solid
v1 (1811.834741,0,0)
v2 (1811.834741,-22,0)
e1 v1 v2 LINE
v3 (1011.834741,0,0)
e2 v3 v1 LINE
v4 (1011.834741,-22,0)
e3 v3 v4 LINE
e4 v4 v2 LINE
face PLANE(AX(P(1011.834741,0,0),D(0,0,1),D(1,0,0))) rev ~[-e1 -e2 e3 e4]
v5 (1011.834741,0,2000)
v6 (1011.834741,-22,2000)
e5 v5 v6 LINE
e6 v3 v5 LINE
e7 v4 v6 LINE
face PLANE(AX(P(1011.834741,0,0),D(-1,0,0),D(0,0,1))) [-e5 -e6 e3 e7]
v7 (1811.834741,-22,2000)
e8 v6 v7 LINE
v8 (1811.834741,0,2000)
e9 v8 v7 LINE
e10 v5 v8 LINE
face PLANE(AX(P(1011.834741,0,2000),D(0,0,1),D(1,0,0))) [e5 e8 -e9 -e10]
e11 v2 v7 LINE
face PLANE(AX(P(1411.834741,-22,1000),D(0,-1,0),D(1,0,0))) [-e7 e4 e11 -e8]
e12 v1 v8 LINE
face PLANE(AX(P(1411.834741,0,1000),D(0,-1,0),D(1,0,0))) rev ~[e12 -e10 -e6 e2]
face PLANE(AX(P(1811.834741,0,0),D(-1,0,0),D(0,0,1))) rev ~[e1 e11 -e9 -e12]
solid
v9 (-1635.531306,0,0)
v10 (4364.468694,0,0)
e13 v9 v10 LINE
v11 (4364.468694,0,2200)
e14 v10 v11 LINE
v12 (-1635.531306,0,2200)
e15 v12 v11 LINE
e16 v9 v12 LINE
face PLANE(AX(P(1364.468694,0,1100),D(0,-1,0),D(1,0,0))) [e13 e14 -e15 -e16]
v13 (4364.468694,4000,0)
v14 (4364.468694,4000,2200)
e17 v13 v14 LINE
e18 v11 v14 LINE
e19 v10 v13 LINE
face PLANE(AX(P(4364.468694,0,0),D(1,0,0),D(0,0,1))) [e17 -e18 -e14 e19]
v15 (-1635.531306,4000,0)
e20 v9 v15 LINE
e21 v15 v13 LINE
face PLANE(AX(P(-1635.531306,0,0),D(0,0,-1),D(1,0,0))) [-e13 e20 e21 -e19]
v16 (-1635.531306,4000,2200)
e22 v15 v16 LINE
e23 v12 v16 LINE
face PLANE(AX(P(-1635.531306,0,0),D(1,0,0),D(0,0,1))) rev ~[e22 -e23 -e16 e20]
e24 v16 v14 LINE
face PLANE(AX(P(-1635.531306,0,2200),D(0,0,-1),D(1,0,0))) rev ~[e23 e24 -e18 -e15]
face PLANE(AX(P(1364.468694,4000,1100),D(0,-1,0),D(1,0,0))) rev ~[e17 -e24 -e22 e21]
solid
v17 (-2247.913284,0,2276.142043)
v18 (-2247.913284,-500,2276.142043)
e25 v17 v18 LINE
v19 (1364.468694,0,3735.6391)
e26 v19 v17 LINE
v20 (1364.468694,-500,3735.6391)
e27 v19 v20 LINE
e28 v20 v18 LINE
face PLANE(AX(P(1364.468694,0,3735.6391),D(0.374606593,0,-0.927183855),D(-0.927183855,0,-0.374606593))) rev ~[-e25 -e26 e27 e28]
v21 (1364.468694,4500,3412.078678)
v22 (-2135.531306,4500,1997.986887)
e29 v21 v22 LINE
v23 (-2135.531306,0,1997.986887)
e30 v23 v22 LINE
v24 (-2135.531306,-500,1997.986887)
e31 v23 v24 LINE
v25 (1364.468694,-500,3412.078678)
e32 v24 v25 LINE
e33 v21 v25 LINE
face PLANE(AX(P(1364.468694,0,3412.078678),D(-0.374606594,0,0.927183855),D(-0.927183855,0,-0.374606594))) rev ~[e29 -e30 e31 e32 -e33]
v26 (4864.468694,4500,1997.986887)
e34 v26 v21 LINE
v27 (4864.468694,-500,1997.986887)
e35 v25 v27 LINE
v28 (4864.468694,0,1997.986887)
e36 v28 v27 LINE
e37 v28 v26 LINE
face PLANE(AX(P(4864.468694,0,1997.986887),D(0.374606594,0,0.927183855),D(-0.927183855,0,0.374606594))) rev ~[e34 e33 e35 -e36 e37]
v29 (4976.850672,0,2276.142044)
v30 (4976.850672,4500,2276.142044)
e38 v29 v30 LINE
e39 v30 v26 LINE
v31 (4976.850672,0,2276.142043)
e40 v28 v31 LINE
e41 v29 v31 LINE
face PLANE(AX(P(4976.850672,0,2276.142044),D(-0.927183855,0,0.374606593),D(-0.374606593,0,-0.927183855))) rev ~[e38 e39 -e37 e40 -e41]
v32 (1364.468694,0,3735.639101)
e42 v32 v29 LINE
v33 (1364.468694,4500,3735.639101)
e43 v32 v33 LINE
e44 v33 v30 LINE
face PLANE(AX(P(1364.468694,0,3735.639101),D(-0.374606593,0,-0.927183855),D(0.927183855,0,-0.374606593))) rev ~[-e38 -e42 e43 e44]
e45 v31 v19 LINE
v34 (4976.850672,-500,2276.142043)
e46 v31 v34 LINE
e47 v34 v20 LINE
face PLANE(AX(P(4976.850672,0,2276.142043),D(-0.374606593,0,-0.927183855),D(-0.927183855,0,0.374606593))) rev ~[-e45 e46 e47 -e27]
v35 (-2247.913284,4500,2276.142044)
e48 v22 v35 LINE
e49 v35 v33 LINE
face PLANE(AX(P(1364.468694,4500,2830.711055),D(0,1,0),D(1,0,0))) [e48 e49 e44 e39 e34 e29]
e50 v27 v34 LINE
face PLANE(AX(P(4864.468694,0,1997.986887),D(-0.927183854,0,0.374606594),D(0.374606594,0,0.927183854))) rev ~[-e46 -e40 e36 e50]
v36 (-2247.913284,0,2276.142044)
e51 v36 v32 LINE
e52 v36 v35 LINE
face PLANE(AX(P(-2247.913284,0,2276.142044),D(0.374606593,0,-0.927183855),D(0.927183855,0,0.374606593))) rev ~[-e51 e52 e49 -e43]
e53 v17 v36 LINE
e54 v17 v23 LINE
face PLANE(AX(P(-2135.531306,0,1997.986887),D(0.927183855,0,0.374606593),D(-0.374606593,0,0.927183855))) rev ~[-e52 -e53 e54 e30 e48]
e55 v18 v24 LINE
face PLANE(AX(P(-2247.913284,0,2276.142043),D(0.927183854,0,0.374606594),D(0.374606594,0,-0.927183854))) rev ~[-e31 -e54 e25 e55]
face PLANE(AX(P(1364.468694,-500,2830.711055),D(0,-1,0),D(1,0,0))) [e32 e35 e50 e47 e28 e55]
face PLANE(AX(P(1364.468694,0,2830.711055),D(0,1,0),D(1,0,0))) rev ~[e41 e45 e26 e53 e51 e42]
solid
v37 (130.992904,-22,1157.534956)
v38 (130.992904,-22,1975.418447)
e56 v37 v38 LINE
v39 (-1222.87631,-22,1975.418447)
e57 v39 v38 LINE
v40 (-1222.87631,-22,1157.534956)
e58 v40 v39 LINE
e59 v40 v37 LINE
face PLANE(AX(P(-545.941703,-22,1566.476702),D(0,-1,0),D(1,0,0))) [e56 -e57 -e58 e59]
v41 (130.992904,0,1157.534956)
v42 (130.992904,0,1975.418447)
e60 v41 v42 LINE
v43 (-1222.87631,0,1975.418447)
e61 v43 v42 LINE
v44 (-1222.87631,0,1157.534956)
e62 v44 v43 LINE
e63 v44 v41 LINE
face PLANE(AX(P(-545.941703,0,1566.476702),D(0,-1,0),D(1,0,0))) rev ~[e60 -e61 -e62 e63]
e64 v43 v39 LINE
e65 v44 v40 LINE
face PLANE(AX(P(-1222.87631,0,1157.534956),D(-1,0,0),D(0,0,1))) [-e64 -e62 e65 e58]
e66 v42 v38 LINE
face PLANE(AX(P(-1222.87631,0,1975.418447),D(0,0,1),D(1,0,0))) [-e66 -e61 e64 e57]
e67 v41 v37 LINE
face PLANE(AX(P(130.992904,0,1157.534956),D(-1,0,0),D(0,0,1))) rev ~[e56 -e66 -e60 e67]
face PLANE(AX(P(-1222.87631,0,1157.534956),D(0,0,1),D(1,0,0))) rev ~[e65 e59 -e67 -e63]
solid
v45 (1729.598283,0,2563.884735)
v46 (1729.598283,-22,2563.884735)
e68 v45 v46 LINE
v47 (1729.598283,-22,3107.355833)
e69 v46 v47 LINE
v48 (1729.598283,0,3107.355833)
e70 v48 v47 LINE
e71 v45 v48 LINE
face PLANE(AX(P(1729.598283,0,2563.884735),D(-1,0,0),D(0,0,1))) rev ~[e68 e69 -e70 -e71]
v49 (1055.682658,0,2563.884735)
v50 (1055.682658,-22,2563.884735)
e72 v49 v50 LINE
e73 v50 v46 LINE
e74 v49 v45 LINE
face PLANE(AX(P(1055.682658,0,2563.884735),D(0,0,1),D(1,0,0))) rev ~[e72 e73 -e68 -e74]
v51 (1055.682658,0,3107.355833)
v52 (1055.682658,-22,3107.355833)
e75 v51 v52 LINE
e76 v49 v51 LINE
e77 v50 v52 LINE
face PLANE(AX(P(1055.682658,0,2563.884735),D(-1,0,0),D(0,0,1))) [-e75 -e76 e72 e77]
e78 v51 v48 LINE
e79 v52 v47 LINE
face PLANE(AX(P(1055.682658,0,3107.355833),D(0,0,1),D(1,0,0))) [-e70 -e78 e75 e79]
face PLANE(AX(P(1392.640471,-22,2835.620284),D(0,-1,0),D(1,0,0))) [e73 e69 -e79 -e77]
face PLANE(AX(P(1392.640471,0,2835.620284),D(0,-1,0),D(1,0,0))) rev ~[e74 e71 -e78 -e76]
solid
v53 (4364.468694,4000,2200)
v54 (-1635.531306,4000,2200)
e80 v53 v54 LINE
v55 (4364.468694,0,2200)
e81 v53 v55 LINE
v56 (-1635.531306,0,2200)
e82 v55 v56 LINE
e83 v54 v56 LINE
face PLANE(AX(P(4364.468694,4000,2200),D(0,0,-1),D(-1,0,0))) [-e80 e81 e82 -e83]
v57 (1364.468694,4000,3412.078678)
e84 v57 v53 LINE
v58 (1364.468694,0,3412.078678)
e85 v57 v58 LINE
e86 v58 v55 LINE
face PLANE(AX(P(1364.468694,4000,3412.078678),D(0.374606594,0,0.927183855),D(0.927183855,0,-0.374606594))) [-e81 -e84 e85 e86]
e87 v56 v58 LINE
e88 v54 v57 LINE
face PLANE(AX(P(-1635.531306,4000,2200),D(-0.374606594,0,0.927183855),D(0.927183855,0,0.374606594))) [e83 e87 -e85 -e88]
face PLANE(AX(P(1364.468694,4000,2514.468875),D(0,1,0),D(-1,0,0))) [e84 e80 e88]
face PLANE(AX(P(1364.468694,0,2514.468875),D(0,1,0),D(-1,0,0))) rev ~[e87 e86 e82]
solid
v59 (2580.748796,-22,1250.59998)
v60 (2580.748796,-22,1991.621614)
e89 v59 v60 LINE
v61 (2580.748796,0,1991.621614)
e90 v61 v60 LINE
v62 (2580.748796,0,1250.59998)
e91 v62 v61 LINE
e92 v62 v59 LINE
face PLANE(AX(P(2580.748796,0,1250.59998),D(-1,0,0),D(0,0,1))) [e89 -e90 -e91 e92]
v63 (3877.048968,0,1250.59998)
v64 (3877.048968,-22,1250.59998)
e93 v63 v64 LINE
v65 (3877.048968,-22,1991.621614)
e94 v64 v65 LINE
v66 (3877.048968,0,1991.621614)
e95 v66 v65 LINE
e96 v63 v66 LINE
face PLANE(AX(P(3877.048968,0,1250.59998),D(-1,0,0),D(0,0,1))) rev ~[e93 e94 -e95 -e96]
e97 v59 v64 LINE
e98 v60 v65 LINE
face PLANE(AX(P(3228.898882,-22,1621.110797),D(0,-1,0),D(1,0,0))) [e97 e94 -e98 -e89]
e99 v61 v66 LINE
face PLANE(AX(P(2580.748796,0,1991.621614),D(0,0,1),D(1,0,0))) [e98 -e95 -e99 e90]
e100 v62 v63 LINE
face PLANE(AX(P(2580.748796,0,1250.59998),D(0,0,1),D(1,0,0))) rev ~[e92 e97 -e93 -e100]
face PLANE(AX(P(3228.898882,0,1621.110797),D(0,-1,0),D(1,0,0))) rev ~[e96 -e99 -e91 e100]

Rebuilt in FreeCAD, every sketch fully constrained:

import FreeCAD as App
import Part
import Sketcher
Q = App.Units.Quantity

doc = App.newDocument("Part")
params = doc.addObject("Spreadsheet::Sheet", "Params")
for row, (alias, value) in enumerate([
    ("sketch1_width", "6000 mm"),
    ("sketch1_height", "2200 mm"),
    ("pad1_length", "4000 mm"),
    ("sketch2_length", "300 mm"),
    ("pad2_length", "500 mm"),
    ("sketch3_length", "300.000001 mm"),
    ("pad3_length", "4500 mm"),
    ("sketch4_width", "6000 mm"),
    ("pad4_length", "4000 mm"),
    ("sketch5_width", "800 mm"),
    ("sketch5_height", "2000 mm"),
    ("pad5_length", "22 mm"),
], start=1):
    params.set(f"A{row}", alias)
    params.set(f"B{row}", "=" + value)
    params.setAlias(f"B{row}", alias)

body = doc.addObject("PartDesign::Body", "Body")

sketch1 = doc.addObject("Sketcher::SketchObject", "Sketch")
body.addObject(sketch1)
sketch1.AttachmentSupport = (doc.XZ_Plane, [""])
sketch1.MapMode = "FlatFace"
sketch1.addGeometry([
    Part.LineSegment(App.Vector(-1636, 2200, 0), App.Vector(-1636, 0, 0)),
    Part.LineSegment(App.Vector(-1636, 0, 0), App.Vector(4364, 0, 0)),
    Part.LineSegment(App.Vector(4364, 0, 0), App.Vector(4364, 2200, 0)),
    Part.LineSegment(App.Vector(4364, 2200, 0), App.Vector(-1636, 2200, 0)),
], False)
sketch1.addConstraint([
    Sketcher.Constraint("Coincident", 0, 2, 1, 1),
    Sketcher.Constraint("Coincident", 1, 2, 2, 1),
    Sketcher.Constraint("Coincident", 2, 2, 3, 1),
    Sketcher.Constraint("Coincident", 3, 2, 0, 1),
    Sketcher.Constraint("Vertical", 0),
    Sketcher.Constraint("Horizontal", 1),
    Sketcher.Constraint("Vertical", 2),
    Sketcher.Constraint("Horizontal", 3),
    Sketcher.Constraint("PointOnObject", 0, 2, -1),
    Sketcher.Constraint("DistanceX", 1, 1, 1, 2, 6000.0),
    Sketcher.Constraint("DistanceY", 0, 2, 0, 1, 2200.0),
    Sketcher.Constraint("DistanceX", 0, 2, -1, 1, 1635.531306),
])
sketch1.setExpression("Constraints[9]", "Params.sketch1_width")
sketch1.setExpression("Constraints[10]", "Params.sketch1_height")
pad1 = doc.addObject("PartDesign::Pad", "Pad")
body.addObject(pad1)
pad1.Profile = sketch1
pad1.setExpression("Length", "Params.pad1_length")
pad1.Reversed = True
body2 = doc.addObject("PartDesign::Body", "Body001")

sketch2 = doc.addObject("Sketcher::SketchObject", "Sketch001")
body2.addObject(sketch2)
sketch2.AttachmentSupport = (doc.getObject("XZ_Plane001"), [""])
sketch2.MapMode = "FlatFace"
sketch2.addGeometry([
    Part.LineSegment(App.Vector(-2248, 2276, 0), App.Vector(-2136, 1998, 0)),
    Part.LineSegment(App.Vector(-2136, 1998, 0), App.Vector(1364, 3412, 0)),
    Part.LineSegment(App.Vector(1364, 3412, 0), App.Vector(4864, 1998, 0)),
    Part.LineSegment(App.Vector(4864, 1998, 0), App.Vector(4977, 2276, 0)),
    Part.LineSegment(App.Vector(4977, 2276, 0), App.Vector(1364, 3736, 0)),
    Part.LineSegment(App.Vector(1364, 3736, 0), App.Vector(-2248, 2276, 0)),
], False)
sketch2.addConstraint([
    Sketcher.Constraint("Coincident", 0, 2, 1, 1),
    Sketcher.Constraint("Coincident", 1, 2, 2, 1),
    Sketcher.Constraint("Coincident", 2, 2, 3, 1),
    Sketcher.Constraint("Coincident", 3, 2, 4, 1),
    Sketcher.Constraint("Coincident", 4, 2, 5, 1),
    Sketcher.Constraint("Coincident", 5, 2, 0, 1),
    Sketcher.Constraint("Perpendicular", 0, 1),
    Sketcher.Constraint("Perpendicular", 2, 3),
    Sketcher.Constraint("Perpendicular", 3, 4),
    Sketcher.Constraint("Parallel", 1, 5),
    Sketcher.Constraint("Horizontal", 0, 2, 2, 2),
    Sketcher.Constraint("Horizontal", 3, 2, 5, 2),
    Sketcher.Constraint("Vertical", 1, 2, 4, 2),
    Sketcher.Constraint("Angle", 0, Q("-68 deg")),
    Sketcher.Constraint("Distance", 0, 300.0),
    Sketcher.Constraint("DistanceX", 0, 2, 1, 2, 3500.0),
    Sketcher.Constraint("DistanceY", -1, 1, 4, 2, 3735.6391),
    Sketcher.Constraint("DistanceX", -1, 1, 3, 2, 4976.850672),
])
sketch2.setExpression("Constraints[14]", "Params.sketch2_length")
pad2 = doc.addObject("PartDesign::Pad", "Pad001")
body2.addObject(pad2)
pad2.Profile = sketch2
pad2.setExpression("Length", "Params.pad2_length")
body.AllowCompound = True
doc.recompute()

boolean = doc.addObject("PartDesign::Boolean", "Boolean")
body.addObject(boolean)
boolean.Type = "Fuse"
boolean.addObjects([body2])

sketch3 = doc.addObject("Sketcher::SketchObject", "Sketch002")
body.addObject(sketch3)
sketch3.AttachmentSupport = (doc.XZ_Plane, [""])
sketch3.MapMode = "FlatFace"
sketch3.addGeometry([
    Part.LineSegment(App.Vector(-2248, 2276, 0), App.Vector(1364, 3736, 0)),
    Part.LineSegment(App.Vector(1364, 3736, 0), App.Vector(4977, 2276, 0)),
    Part.LineSegment(App.Vector(4977, 2276, 0), App.Vector(4864, 1998, 0)),
    Part.LineSegment(App.Vector(4864, 1998, 0), App.Vector(1364, 3412, 0)),
    Part.LineSegment(App.Vector(1364, 3412, 0), App.Vector(-2136, 1998, 0)),
    Part.LineSegment(App.Vector(-2136, 1998, 0), App.Vector(-2248, 2276, 0)),
], False)
sketch3.addConstraint([
    Sketcher.Constraint("Coincident", 0, 2, 1, 1),
    Sketcher.Constraint("Coincident", 1, 2, 2, 1),
    Sketcher.Constraint("Coincident", 2, 2, 3, 1),
    Sketcher.Constraint("Coincident", 3, 2, 4, 1),
    Sketcher.Constraint("Coincident", 4, 2, 5, 1),
    Sketcher.Constraint("Coincident", 5, 2, 0, 1),
    Sketcher.Constraint("Perpendicular", 1, 2),
    Sketcher.Constraint("Perpendicular", 2, 3),
    Sketcher.Constraint("Parallel", 0, 4),
    Sketcher.Constraint("Perpendicular", 4, 5),
    Sketcher.Constraint("Horizontal", 2, 2, 4, 2),
    Sketcher.Constraint("Horizontal", 1, 2, 5, 2),
    Sketcher.Constraint("Vertical", 0, 2, 3, 2),
    Sketcher.Constraint("Angle", 0, Q("22 deg")),
    Sketcher.Constraint("Distance", 2, 300.000001),
    Sketcher.Constraint("DistanceX", 0, 2, 2, 2, 3500.0),
    Sketcher.Constraint("DistanceY", -1, 1, 0, 2, 3735.639101),
    Sketcher.Constraint("DistanceX", -1, 1, 1, 2, 4976.850672),
])
sketch3.setExpression("Constraints[14]", "Params.sketch3_length")
pad3 = doc.addObject("PartDesign::Pad", "Pad002")
body.addObject(pad3)
pad3.Profile = sketch3
pad3.setExpression("Length", "Params.pad3_length")
pad3.Reversed = True
body3 = doc.addObject("PartDesign::Body", "Body002")

sketch4 = doc.addObject("Sketcher::SketchObject", "Sketch003")
body3.addObject(sketch4)
sketch4.AttachmentSupport = (doc.getObject("XZ_Plane002"), [""])
sketch4.MapMode = "FlatFace"
sketch4.AttachmentOffset = App.Placement(App.Vector(0, 0, -4000), App.Rotation())
sketch4.addGeometry([
    Part.LineSegment(App.Vector(1364, 3412, 0), App.Vector(4364, 2200, 0)),
    Part.LineSegment(App.Vector(4364, 2200, 0), App.Vector(-1636, 2200, 0)),
    Part.LineSegment(App.Vector(-1636, 2200, 0), App.Vector(1364, 3412, 0)),
], False)
sketch4.addConstraint([
    Sketcher.Constraint("Coincident", 0, 2, 1, 1),
    Sketcher.Constraint("Coincident", 1, 2, 2, 1),
    Sketcher.Constraint("Coincident", 2, 2, 0, 1),
    Sketcher.Constraint("Horizontal", 1),
    Sketcher.Constraint("Equal", 0, 2),
    Sketcher.Constraint("DistanceX", 1, 2, 1, 1, 6000.0),
    Sketcher.Constraint("Angle", 0, Q("-22 deg")),
    Sketcher.Constraint("DistanceY", -1, 1, 0, 2, 2200.0),
    Sketcher.Constraint("DistanceX", -1, 1, 0, 2, 4364.468694),
])
sketch4.setExpression("Constraints[5]", "Params.sketch4_width")
pad4 = doc.addObject("PartDesign::Pad", "Pad003")
body3.addObject(pad4)
pad4.Profile = sketch4
pad4.setExpression("Length", "Params.pad4_length")
body4 = doc.addObject("PartDesign::Body", "Body003")
body4.AllowCompound = True

sketch5 = doc.addObject("Sketcher::SketchObject", "Sketch004")
body4.addObject(sketch5)
sketch5.AttachmentSupport = (doc.getObject("XZ_Plane003"), [""])
sketch5.MapMode = "FlatFace"
sketch5.addGeometry([
    Part.LineSegment(App.Vector(1012, 2000, 0), App.Vector(1012, 0, 0)),
    Part.LineSegment(App.Vector(1012, 0, 0), App.Vector(1812, 0, 0)),
    Part.LineSegment(App.Vector(1812, 0, 0), App.Vector(1812, 2000, 0)),
    Part.LineSegment(App.Vector(1812, 2000, 0), App.Vector(1012, 2000, 0)),
    Part.LineSegment(App.Vector(2581, 1992, 0), App.Vector(2581, 1251, 0)),
    Part.LineSegment(App.Vector(2581, 1251, 0), App.Vector(3877, 1251, 0)),
    Part.LineSegment(App.Vector(3877, 1251, 0), App.Vector(3877, 1992, 0)),
    Part.LineSegment(App.Vector(3877, 1992, 0), App.Vector(2581, 1992, 0)),
    Part.LineSegment(App.Vector(-1223, 1975, 0), App.Vector(-1223, 1158, 0)),
    Part.LineSegment(App.Vector(-1223, 1158, 0), App.Vector(131, 1158, 0)),
    Part.LineSegment(App.Vector(131, 1158, 0), App.Vector(131, 1975, 0)),
    Part.LineSegment(App.Vector(131, 1975, 0), App.Vector(-1223, 1975, 0)),
    Part.LineSegment(App.Vector(1056, 3107, 0), App.Vector(1056, 2564, 0)),
    Part.LineSegment(App.Vector(1056, 2564, 0), App.Vector(1730, 2564, 0)),
    Part.LineSegment(App.Vector(1730, 2564, 0), App.Vector(1730, 3107, 0)),
    Part.LineSegment(App.Vector(1730, 3107, 0), App.Vector(1056, 3107, 0)),
], False)
sketch5.addConstraint([
    Sketcher.Constraint("Coincident", 0, 2, 1, 1),
    Sketcher.Constraint("Coincident", 1, 2, 2, 1),
    Sketcher.Constraint("Coincident", 2, 2, 3, 1),
    Sketcher.Constraint("Coincident", 3, 2, 0, 1),
    Sketcher.Constraint("Coincident", 4, 2, 5, 1),
    Sketcher.Constraint("Coincident", 5, 2, 6, 1),
    Sketcher.Constraint("Coincident", 6, 2, 7, 1),
    Sketcher.Constraint("Coincident", 7, 2, 4, 1),
    Sketcher.Constraint("Coincident", 8, 2, 9, 1),
    Sketcher.Constraint("Coincident", 9, 2, 10, 1),
    Sketcher.Constraint("Coincident", 10, 2, 11, 1),
    Sketcher.Constraint("Coincident", 11, 2, 8, 1),
    Sketcher.Constraint("Coincident", 12, 2, 13, 1),
    Sketcher.Constraint("Coincident", 13, 2, 14, 1),
    Sketcher.Constraint("Coincident", 14, 2, 15, 1),
    Sketcher.Constraint("Coincident", 15, 2, 12, 1),
    Sketcher.Constraint("Vertical", 0),
    Sketcher.Constraint("Horizontal", 1),
    Sketcher.Constraint("Vertical", 2),
    Sketcher.Constraint("Horizontal", 3),
    Sketcher.Constraint("Vertical", 4),
    Sketcher.Constraint("Horizontal", 5),
    Sketcher.Constraint("Vertical", 6),
    Sketcher.Constraint("Horizontal", 7),
    Sketcher.Constraint("Vertical", 8),
    Sketcher.Constraint("Horizontal", 9),
    Sketcher.Constraint("Vertical", 10),
    Sketcher.Constraint("Horizontal", 11),
    Sketcher.Constraint("Vertical", 12),
    Sketcher.Constraint("Horizontal", 13),
    Sketcher.Constraint("Vertical", 14),
    Sketcher.Constraint("Horizontal", 15),
    Sketcher.Constraint("PointOnObject", 0, 2, -1),
    Sketcher.Constraint("DistanceX", 1, 1, 1, 2, 800.0),
    Sketcher.Constraint("DistanceY", 0, 2, 0, 1, 2000.0),
    Sketcher.Constraint("DistanceY", 12, 2, 12, 1, 543.471098),
    Sketcher.Constraint("DistanceY", 8, 2, 8, 1, 817.883491),
    Sketcher.Constraint("DistanceX", 5, 1, 5, 2, 1296.300173),
    Sketcher.Constraint("DistanceX", 9, 1, 9, 2, 1353.869214),
    Sketcher.Constraint("DistanceX", 13, 1, 13, 2, 673.915625),
    Sketcher.Constraint("DistanceY", 4, 2, 4, 1, 741.021634),
    Sketcher.Constraint("DistanceX", -1, 1, 0, 2, 1011.834741),
    Sketcher.Constraint("DistanceY", -1, 1, 4, 2, 1250.59998),
    Sketcher.Constraint("DistanceX", -1, 1, 5, 2, 3877.048968),
    Sketcher.Constraint("DistanceX", 8, 2, -1, 1, 1222.87631),
    Sketcher.Constraint("DistanceX", -1, 1, 12, 2, 1055.682658),
    Sketcher.Constraint("DistanceY", 7, 2, 12, 2, 572.263121),
    Sketcher.Constraint("DistanceY", 9, 2, 12, 2, 1406.349779),
])
sketch5.setExpression("Constraints[33]", "Params.sketch5_width")
sketch5.setExpression("Constraints[34]", "Params.sketch5_height")
pad5 = doc.addObject("PartDesign::Pad", "Pad004")
body4.addObject(pad5)
pad5.Profile = sketch5
pad5.setExpression("Length", "Params.pad5_length")

doc.recompute()
